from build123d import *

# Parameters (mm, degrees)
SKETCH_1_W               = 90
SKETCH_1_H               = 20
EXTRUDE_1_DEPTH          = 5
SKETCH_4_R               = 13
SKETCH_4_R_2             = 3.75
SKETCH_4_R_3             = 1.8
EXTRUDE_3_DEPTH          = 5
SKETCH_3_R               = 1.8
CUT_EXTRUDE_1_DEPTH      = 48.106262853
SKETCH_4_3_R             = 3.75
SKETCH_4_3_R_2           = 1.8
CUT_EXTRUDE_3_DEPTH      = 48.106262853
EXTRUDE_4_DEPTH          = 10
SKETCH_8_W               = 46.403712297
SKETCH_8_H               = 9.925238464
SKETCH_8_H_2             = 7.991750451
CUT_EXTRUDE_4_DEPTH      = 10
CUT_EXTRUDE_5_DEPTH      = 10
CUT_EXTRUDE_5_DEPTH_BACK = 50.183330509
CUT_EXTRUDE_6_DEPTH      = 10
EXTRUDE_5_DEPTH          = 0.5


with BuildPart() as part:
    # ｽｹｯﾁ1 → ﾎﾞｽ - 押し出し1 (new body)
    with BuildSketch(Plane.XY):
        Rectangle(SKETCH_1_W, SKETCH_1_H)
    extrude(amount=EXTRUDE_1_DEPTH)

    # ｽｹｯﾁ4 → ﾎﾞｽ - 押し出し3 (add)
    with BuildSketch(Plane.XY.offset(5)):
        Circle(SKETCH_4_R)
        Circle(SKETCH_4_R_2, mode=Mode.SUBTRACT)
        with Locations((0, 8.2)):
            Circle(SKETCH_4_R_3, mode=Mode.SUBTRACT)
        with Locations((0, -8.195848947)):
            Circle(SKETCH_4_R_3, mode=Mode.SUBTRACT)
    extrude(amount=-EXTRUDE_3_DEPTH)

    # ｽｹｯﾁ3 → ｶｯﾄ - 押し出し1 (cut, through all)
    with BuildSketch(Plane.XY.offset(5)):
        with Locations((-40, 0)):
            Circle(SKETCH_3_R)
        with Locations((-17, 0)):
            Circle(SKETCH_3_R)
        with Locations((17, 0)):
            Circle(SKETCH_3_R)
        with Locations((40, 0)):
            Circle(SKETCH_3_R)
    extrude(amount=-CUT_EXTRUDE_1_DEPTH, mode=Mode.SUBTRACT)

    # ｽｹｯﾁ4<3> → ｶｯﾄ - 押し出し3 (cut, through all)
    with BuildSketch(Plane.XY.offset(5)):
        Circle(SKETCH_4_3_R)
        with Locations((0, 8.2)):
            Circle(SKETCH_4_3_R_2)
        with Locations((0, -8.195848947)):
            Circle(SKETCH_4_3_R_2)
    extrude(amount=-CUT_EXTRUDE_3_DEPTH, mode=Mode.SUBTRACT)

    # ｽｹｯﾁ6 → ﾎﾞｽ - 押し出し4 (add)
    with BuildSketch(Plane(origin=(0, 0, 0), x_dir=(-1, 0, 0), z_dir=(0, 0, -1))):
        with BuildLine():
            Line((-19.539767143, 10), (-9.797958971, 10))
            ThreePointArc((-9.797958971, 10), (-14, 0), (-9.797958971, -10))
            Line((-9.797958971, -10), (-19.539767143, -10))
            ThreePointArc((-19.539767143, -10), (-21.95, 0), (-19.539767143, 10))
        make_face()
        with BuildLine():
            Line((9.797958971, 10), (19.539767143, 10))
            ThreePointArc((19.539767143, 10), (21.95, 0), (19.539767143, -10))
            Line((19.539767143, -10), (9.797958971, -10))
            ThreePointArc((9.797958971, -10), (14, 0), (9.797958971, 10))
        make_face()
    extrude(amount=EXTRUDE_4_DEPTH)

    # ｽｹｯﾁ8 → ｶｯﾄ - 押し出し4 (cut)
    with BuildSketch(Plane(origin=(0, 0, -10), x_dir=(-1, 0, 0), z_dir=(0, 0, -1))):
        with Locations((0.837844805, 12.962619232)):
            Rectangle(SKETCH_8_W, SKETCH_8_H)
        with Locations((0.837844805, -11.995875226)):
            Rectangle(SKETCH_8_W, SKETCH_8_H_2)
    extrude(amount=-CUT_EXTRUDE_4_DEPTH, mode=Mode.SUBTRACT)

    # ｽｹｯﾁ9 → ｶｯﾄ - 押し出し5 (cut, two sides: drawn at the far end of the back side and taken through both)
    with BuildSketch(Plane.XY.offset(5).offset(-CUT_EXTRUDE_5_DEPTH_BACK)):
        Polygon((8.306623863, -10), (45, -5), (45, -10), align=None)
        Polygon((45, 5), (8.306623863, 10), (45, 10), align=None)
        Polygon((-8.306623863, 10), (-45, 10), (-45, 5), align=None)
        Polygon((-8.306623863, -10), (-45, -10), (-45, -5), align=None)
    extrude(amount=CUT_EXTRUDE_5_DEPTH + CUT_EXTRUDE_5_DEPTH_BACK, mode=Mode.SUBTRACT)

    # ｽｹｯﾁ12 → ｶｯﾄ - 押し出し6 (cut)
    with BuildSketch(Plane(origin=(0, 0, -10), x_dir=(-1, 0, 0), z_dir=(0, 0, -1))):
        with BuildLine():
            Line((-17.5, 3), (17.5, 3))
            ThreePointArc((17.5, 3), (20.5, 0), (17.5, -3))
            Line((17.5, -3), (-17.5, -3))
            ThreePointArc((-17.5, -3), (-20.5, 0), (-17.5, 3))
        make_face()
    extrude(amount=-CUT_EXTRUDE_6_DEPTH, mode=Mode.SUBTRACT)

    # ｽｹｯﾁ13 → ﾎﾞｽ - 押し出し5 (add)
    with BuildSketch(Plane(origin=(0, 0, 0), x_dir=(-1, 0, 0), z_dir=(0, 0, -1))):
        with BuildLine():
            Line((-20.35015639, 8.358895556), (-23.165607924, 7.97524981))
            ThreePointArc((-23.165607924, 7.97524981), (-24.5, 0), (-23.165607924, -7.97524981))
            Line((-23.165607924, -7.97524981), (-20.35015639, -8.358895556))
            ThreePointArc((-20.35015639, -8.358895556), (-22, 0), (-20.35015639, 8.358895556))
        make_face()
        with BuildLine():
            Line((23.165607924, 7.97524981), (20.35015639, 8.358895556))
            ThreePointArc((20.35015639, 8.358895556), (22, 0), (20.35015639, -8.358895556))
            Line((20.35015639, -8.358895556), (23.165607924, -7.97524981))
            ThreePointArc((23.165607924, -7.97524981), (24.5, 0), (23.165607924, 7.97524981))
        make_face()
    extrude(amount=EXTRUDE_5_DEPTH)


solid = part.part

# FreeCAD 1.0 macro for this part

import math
import FreeCAD as App
import Part
import Sketcher
from FreeCAD import Vector


def add_polygon(sketch, points):
    """Adds a closed chain of lines whose ends are joined by coincident constraints."""
    first, n = sketch.GeometryCount, len(points)
    for a, b in zip(points, points[1:] + points[:1]):
        sketch.addGeometry(Part.LineSegment(App.Vector(*a, 0), App.Vector(*b, 0)), False)
    for i in range(n):
        sketch.addConstraint(Sketcher.Constraint("Coincident", first + i, 2, first + (i + 1) % n, 1))

doc = App.newDocument("Part")
body = doc.addObject("PartDesign::Body", "Body")

# Sketch on XY plane
sketch1 = body.newObject("Sketcher::SketchObject", "Sketch")
sketch1.AttachmentSupport = (doc.getObject("XY_Plane"), [""])
sketch1.MapMode = "FlatFace"
add_polygon(sketch1, [(-45, 10), (-45, -10), (45, -10), (45, 10)])  # lines 0-3
sketch1.addConstraint([
    Sketcher.Constraint("Vertical", 0),
    Sketcher.Constraint("Horizontal", 1),
    Sketcher.Constraint("Vertical", 2),
    Sketcher.Constraint("Horizontal", 3),
    Sketcher.Constraint("Symmetric", 0, 2, 2, 2, -1, 1),
    Sketcher.Constraint("DistanceX", 1, 1, 1, 2, 90.0),
    Sketcher.Constraint("DistanceY", 0, 2, 0, 1, 20.0),
])
pad1 = body.newObject("PartDesign::Pad", "Pad")
pad1.Profile = sketch1
pad1.Length = 5

# Sketch on XY plane
sketch2 = body.newObject("Sketcher::SketchObject", "Sketch001")
sketch2.AttachmentSupport = (doc.getObject("XY_Plane"), [""])
sketch2.MapMode = "FlatFace"
sketch2.AttachmentOffset = App.Placement(Vector(0, 0, 5), App.Rotation())
sketch2.addGeometry([
    Part.Circle(Vector(0, 0, 0), Vector(0, 0, 1), 13),
    Part.Circle(Vector(0, -8.2, 0), Vector(0, 0, 1), 1.8),
    Part.Circle(Vector(0, 0, 0), Vector(0, 0, 1), 3.8),
    Part.Circle(Vector(0, 8.2, 0), Vector(0, 0, 1), 1.8),
], False)
sketch2.addConstraint([
    Sketcher.Constraint("Coincident", 0, 3, -1, 1),
    Sketcher.Constraint("Coincident", 2, 3, -1, 1),
    Sketcher.Constraint("Equal", 1, 3),
    Sketcher.Constraint("PointOnObject", 1, 3, -2),
    Sketcher.Constraint("PointOnObject", 3, 3, -2),
    Sketcher.Constraint("Diameter", 0, 26.0),
    Sketcher.Constraint("Diameter", 1, 3.6),
    Sketcher.Constraint("Diameter", 2, 7.5),
    Sketcher.Constraint("DistanceY", -1, 1, 3, 3, 8.2),
    Sketcher.Constraint("DistanceY", 1, 3, -1, 1, 8.195849),
])
pad2 = body.newObject("PartDesign::Pad", "Pad001")
pad2.Profile = sketch2
pad2.Length = 5
pad2.Reversed = True

# Sketch on XY plane
sketch3 = body.newObject("Sketcher::SketchObject", "Sketch002")
sketch3.AttachmentSupport = (doc.getObject("XY_Plane"), [""])
sketch3.MapMode = "FlatFace"
sketch3.AttachmentOffset = App.Placement(Vector(0, 0, 5), App.Rotation())
sketch3.addGeometry([
    Part.Circle(Vector(-40, 0, 0), Vector(0, 0, 1), 1.8),
    Part.Circle(Vector(-17, 0, 0), Vector(0, 0, 1), 1.8),
    Part.Circle(Vector(17, 0, 0), Vector(0, 0, 1), 1.8),
    Part.Circle(Vector(40, 0, 0), Vector(0, 0, 1), 1.8),
], False)
sketch3.addConstraint([
    Sketcher.Constraint("Equal", 0, 1),
    Sketcher.Constraint("Equal", 1, 2),
    Sketcher.Constraint("Equal", 2, 3),
    Sketcher.Constraint("Symmetric", 1, 3, 2, 3, -1, 1),
    Sketcher.Constraint("Symmetric", 0, 3, 3, 3, -1, 1),
    Sketcher.Constraint("PointOnObject", 0, 3, -1),
    Sketcher.Constraint("PointOnObject", 1, 3, -1),
    Sketcher.Constraint("Diameter", 0, 3.6),
    Sketcher.Constraint("DistanceX", 0, 3, -1, 1, 40.0),
    Sketcher.Constraint("DistanceX", 1, 3, -1, 1, 17.0),
])
pocket1 = body.newObject("PartDesign::Pocket", "Pocket")
pocket1.Profile = sketch3
pocket1.Type = "ThroughAll"

# Sketch on XY plane
sketch4 = body.newObject("Sketcher::SketchObject", "Sketch003")
sketch4.AttachmentSupport = (doc.getObject("XY_Plane"), [""])
sketch4.MapMode = "FlatFace"
sketch4.AttachmentOffset = App.Placement(Vector(0, 0, 5), App.Rotation())
sketch4.addGeometry([
    Part.Circle(Vector(0, 0, 0), Vector(0, 0, 1), 3.8),
    Part.Circle(Vector(0, 8.2, 0), Vector(0, 0, 1), 1.8),
    Part.Circle(Vector(0, -8.2, 0), Vector(0, 0, 1), 1.8),
], False)
sketch4.addConstraint([
    Sketcher.Constraint("Coincident", 0, 3, -1, 1),
    Sketcher.Constraint("Equal", 1, 2),
    Sketcher.Constraint("PointOnObject", 1, 3, -2),
    Sketcher.Constraint("PointOnObject", 2, 3, -2),
    Sketcher.Constraint("Diameter", 0, 7.5),
    Sketcher.Constraint("Diameter", 1, 3.6),
    Sketcher.Constraint("DistanceY", -1, 1, 1, 3, 8.2),
    Sketcher.Constraint("DistanceY", 2, 3, -1, 1, 8.195849),
])
pocket2 = body.newObject("PartDesign::Pocket", "Pocket001")
pocket2.Profile = sketch4
pocket2.Type = "ThroughAll"

# Sketch on XY plane
sketch5 = body.newObject("Sketcher::SketchObject", "Sketch004")
sketch5.AttachmentSupport = (doc.getObject("XY_Plane"), [""])
sketch5.MapMode = "FlatFace"
sketch5.addGeometry([
    Part.LineSegment(Vector(10, 10, 0), Vector(20, 10, 0)),  # 0
    Part.ArcOfCircle(Part.Circle(Vector(0, 0, 0), Vector(0, 0, 1), 22), math.radians(-27), math.radians(27)),  # 1
    Part.LineSegment(Vector(20, -10, 0), Vector(10, -10, 0)),  # 2
    Part.ArcOfCircle(Part.Circle(Vector(0, 0, 0), Vector(0, 0, 1), 14), math.radians(-46), math.radians(46)),  # 3
    Part.LineSegment(Vector(-20, 10, 0), Vector(-10, 10, 0)),  # 4
    Part.ArcOfCircle(Part.Circle(Vector(0, 0, 0), Vector(0, 0, 1), 14), math.radians(134), math.radians(226)),  # 5
    Part.LineSegment(Vector(-10, -10, 0), Vector(-20, -10, 0)),  # 6
    Part.ArcOfCircle(Part.Circle(Vector(0, 0, 0), Vector(0, 0, 1), 22), math.radians(153), math.radians(207)),  # 7
], False)
sketch5.addConstraint([
    Sketcher.Constraint("Coincident", 0, 2, 1, 2),
    Sketcher.Constraint("Coincident", 1, 1, 2, 1),
    Sketcher.Constraint("Coincident", 2, 2, 3, 1),
    Sketcher.Constraint("Coincident", 3, 2, 0, 1),
    Sketcher.Constraint("Coincident", 4, 2, 5, 1),
    Sketcher.Constraint("Coincident", 5, 2, 6, 1),
    Sketcher.Constraint("Coincident", 6, 2, 7, 2),
    Sketcher.Constraint("Coincident", 7, 1, 4, 1),
    Sketcher.Constraint("Horizontal", 0),
    Sketcher.Constraint("Horizontal", 2),
    Sketcher.Constraint("Horizontal", 4),
    Sketcher.Constraint("Horizontal", 6),
    Sketcher.Constraint("Coincident", 1, 3, -1, 1),
    Sketcher.Constraint("Coincident", 3, 3, -1, 1),
    Sketcher.Constraint("Coincident", 5, 3, -1, 1),
    Sketcher.Constraint("Coincident", 7, 3, -1, 1),
    Sketcher.Constraint("Equal", 3, 5),
    Sketcher.Constraint("Equal", 1, 7),
    Sketcher.Constraint("Horizontal", 3, 2, 4, 2),
    Sketcher.Constraint("Horizontal", 2, 2, 5, 2),
    Sketcher.Constraint("Vertical", 0, 2, 1, 1),
    Sketcher.Constraint("Radius", 3, 14.0),
    Sketcher.Constraint("Radius", 1, 21.95),
    Sketcher.Constraint("DistanceY", -1, 1, 0, 2, 10.0),
])
pad3 = body.newObject("PartDesign::Pad", "Pad002")
pad3.Profile = sketch5
pad3.Length = 10
pad3.Reversed = True

# Sketch on XY plane
sketch6 = body.newObject("Sketcher::SketchObject", "Sketch005")
sketch6.AttachmentSupport = (doc.getObject("XY_Plane"), [""])
sketch6.MapMode = "FlatFace"
sketch6.AttachmentOffset = App.Placement(Vector(0, 0, -10), App.Rotation())
add_polygon(sketch6, [(22, 18), (22, 8), (-24, 8), (-24, 18)])  # lines 0-3
add_polygon(sketch6, [(22, -8), (22, -16), (-24, -16), (-24, -8)])  # lines 4-7
sketch6.addConstraint([
    Sketcher.Constraint("Vertical", 0),
    Sketcher.Constraint("Horizontal", 1),
    Sketcher.Constraint("Vertical", 2),
    Sketcher.Constraint("Horizontal", 3),
    Sketcher.Constraint("Vertical", 4),
    Sketcher.Constraint("Horizontal", 5),
    Sketcher.Constraint("Vertical", 6),
    Sketcher.Constraint("Horizontal", 7),
    Sketcher.Constraint("Symmetric", 1, 2, 6, 2, -1),
    Sketcher.Constraint("Vertical", 3, 2, 4, 2),
    Sketcher.Constraint("DistanceY", -1, 1, 0, 2, 8.0),
    Sketcher.Constraint("DistanceY", 0, 2, 0, 1, 9.925238),
    Sketcher.Constraint("DistanceY", 4, 2, 4, 1, 7.99175),
    Sketcher.Constraint("DistanceX", 1, 2, -1, 1, 24.039701),
    Sketcher.Constraint("DistanceX", 1, 2, 1, 1, 46.403712),
])
pocket3 = body.newObject("PartDesign::Pocket", "Pocket002")
pocket3.Profile = sketch6
pocket3.Length = 10
pocket3.Reversed = True

# Sketch on XY plane
sketch7 = body.newObject("Sketcher::SketchObject", "Sketch006")
sketch7.AttachmentSupport = (doc.getObject("XY_Plane"), [""])
sketch7.MapMode = "FlatFace"
sketch7.AttachmentOffset = App.Placement(Vector(0, 0, 5), App.Rotation())
add_polygon(sketch7, [(45, -5), (8, -10), (45, -10)])  # lines 0-2
add_polygon(sketch7, [(8, 10), (45, 5), (45, 10)])  # lines 3-5
add_polygon(sketch7, [(-8, 10), (-45, 10), (-45, 5)])  # lines 6-8
add_polygon(sketch7, [(-45, -10), (-8, -10), (-45, -5)])  # lines 9-11
sketch7.addConstraint([
    Sketcher.Constraint("Horizontal", 1),
    Sketcher.Constraint("Vertical", 2),
    Sketcher.Constraint("Vertical", 4),
    Sketcher.Constraint("Horizontal", 5),
    Sketcher.Constraint("Horizontal", 6),
    Sketcher.Constraint("Vertical", 7),
    Sketcher.Constraint("Horizontal", 9),
    Sketcher.Constraint("Vertical", 11),
    Sketcher.Constraint("Symmetric", 1, 2, 6, 2, -1, 1),
    Sketcher.Constraint("Symmetric", 5, 2, 9, 2, -1, 1),
    Sketcher.Constraint("Symmetric", 3, 2, 10, 2, -1, 1),
    Sketcher.Constraint("Symmetric", 4, 2, 6, 2, -2),
    Sketcher.Constraint("Parallel", 0, 8),
    Sketcher.Constraint("Horizontal", 3, 2, 7, 2),
    Sketcher.Constraint("Horizontal", 2, 2, 10, 2),
    Sketcher.Constraint("Vertical", 0, 2, 5, 2),
    Sketcher.Constraint("DistanceY", 2, 1, 2, 2, 5.0),
    Sketcher.Constraint("DistanceY", 0, 2, -1, 1, 10.0),
    Sketcher.Constraint("DistanceX", -1, 1, 1, 2, 45.0),
    Sketcher.Constraint("Distance", 0, 37.03247),
])
pocket4 = body.newObject("PartDesign::Pocket", "Pocket003")
pocket4.Profile = sketch7
pocket4.Type = "ThroughAll"
pocket4.Midplane = True

# Sketch on XY plane
sketch8 = body.newObject("Sketcher::SketchObject", "Sketch007")
sketch8.AttachmentSupport = (doc.getObject("XY_Plane"), [""])
sketch8.MapMode = "FlatFace"
sketch8.AttachmentOffset = App.Placement(Vector(0, 0, -10), App.Rotation())
sketch8.addGeometry([
    Part.LineSegment(Vector(-17.5, 3, 0), Vector(17.5, 3, 0)),
    Part.ArcOfCircle(Part.Circle(Vector(17.5, 0, 0), Vector(0, 0, 1), 3), math.radians(-90), math.radians(90)),
    Part.LineSegment(Vector(17.5, -3, 0), Vector(-17.5, -3, 0)),
    Part.ArcOfCircle(Part.Circle(Vector(-17.5, 0, 0), Vector(0, 0, 1), 3), math.radians(90), math.radians(270)),
], False)
sketch8.addConstraint([
    Sketcher.Constraint("Tangent", 0, 2, 1, 2),
    Sketcher.Constraint("Tangent", 1, 1, 2, 1),
    Sketcher.Constraint("Tangent", 2, 2, 3, 2),
    Sketcher.Constraint("Tangent", 3, 1, 0, 1),
    Sketcher.Constraint("Horizontal", 0),
    Sketcher.Constraint("Horizontal", 2),
    Sketcher.Constraint("Symmetric", 1, 3, 3, 3, -1, 1),
    Sketcher.Constraint("Radius", 1, 3.0),
    Sketcher.Constraint("DistanceX", 0, 1, 0, 2, 35.0),
])
pocket5 = body.newObject("PartDesign::Pocket", "Pocket004")
pocket5.Profile = sketch8
pocket5.Length = 10
pocket5.Reversed = True

# Sketch on XY plane
sketch9 = body.newObject("Sketcher::SketchObject", "Sketch008")
sketch9.AttachmentSupport = (doc.getObject("XY_Plane"), [""])
sketch9.MapMode = "FlatFace"
sketch9.addGeometry([
    Part.LineSegment(Vector(20.4, 8.4, 0), Vector(23.2, 8, 0)),  # 0
    Part.ArcOfCircle(Part.Circle(Vector(0, 0, 0), Vector(0, 0, 1), 24.5), math.radians(-19), math.radians(19)),  # 1
    Part.LineSegment(Vector(23.2, -8, 0), Vector(20.4, -8.4, 0)),  # 2
    Part.ArcOfCircle(Part.Circle(Vector(0, 0, 0), Vector(0, 0, 1), 22), math.radians(-22), math.radians(22)),  # 3
    Part.LineSegment(Vector(-23.2, 8, 0), Vector(-20.4, 8.4, 0)),  # 4
    Part.ArcOfCircle(Part.Circle(Vector(0, 0, 0), Vector(0, 0, 1), 22), math.radians(158), math.radians(202)),  # 5
    Part.LineSegment(Vector(-20.4, -8.4, 0), Vector(-23.2, -8, 0)),  # 6
    Part.ArcOfCircle(Part.Circle(Vector(0, 0, 0), Vector(0, 0, 1), 24.5), math.radians(161), math.radians(199)),  # 7
], False)
sketch9.addConstraint([
    Sketcher.Constraint("Coincident", 0, 2, 1, 2),
    Sketcher.Constraint("Coincident", 1, 1, 2, 1),
    Sketcher.Constraint("Coincident", 2, 2, 3, 1),
    Sketcher.Constraint("Coincident", 3, 2, 0, 1),
    Sketcher.Constraint("Coincident", 4, 2, 5, 1),
    Sketcher.Constraint("Coincident", 5, 2, 6, 1),
    Sketcher.Constraint("Coincident", 6, 2, 7, 2),
    Sketcher.Constraint("Coincident", 7, 1, 4, 1),
    Sketcher.Constraint("Coincident", 1, 3, -1, 1),
    Sketcher.Constraint("Coincident", 3, 3, -1, 1),
    Sketcher.Constraint("Coincident", 5, 3, -1, 1),
    Sketcher.Constraint("Coincident", 7, 3, -1, 1),
    Sketcher.Constraint("Equal", 3, 5),
    Sketcher.Constraint("Equal", 1, 7),
    Sketcher.Constraint("Parallel", 2, 4),
    Sketcher.Constraint("Parallel", 0, 6),
    Sketcher.Constraint("Horizontal", 3, 2, 4, 2),
    Sketcher.Constraint("Horizontal", 2, 2, 5, 2),
    Sketcher.Constraint("Horizontal", 1, 1, 6, 2),
    Sketcher.Constraint("Vertical", 0, 2, 1, 1),
    Sketcher.Constraint("Radius", 3, 22.0),
    Sketcher.Constraint("Radius", 1, 24.5),
    Sketcher.Constraint("DistanceY", 1, 1, 0, 2, 15.9505),
    Sketcher.Constraint("Distance", 0, 2.84147),
])
pad4 = body.newObject("PartDesign::Pad", "Pad003")
pad4.Profile = sketch9
pad4.Length = 0.5
pad4.Reversed = True

doc.recompute()
